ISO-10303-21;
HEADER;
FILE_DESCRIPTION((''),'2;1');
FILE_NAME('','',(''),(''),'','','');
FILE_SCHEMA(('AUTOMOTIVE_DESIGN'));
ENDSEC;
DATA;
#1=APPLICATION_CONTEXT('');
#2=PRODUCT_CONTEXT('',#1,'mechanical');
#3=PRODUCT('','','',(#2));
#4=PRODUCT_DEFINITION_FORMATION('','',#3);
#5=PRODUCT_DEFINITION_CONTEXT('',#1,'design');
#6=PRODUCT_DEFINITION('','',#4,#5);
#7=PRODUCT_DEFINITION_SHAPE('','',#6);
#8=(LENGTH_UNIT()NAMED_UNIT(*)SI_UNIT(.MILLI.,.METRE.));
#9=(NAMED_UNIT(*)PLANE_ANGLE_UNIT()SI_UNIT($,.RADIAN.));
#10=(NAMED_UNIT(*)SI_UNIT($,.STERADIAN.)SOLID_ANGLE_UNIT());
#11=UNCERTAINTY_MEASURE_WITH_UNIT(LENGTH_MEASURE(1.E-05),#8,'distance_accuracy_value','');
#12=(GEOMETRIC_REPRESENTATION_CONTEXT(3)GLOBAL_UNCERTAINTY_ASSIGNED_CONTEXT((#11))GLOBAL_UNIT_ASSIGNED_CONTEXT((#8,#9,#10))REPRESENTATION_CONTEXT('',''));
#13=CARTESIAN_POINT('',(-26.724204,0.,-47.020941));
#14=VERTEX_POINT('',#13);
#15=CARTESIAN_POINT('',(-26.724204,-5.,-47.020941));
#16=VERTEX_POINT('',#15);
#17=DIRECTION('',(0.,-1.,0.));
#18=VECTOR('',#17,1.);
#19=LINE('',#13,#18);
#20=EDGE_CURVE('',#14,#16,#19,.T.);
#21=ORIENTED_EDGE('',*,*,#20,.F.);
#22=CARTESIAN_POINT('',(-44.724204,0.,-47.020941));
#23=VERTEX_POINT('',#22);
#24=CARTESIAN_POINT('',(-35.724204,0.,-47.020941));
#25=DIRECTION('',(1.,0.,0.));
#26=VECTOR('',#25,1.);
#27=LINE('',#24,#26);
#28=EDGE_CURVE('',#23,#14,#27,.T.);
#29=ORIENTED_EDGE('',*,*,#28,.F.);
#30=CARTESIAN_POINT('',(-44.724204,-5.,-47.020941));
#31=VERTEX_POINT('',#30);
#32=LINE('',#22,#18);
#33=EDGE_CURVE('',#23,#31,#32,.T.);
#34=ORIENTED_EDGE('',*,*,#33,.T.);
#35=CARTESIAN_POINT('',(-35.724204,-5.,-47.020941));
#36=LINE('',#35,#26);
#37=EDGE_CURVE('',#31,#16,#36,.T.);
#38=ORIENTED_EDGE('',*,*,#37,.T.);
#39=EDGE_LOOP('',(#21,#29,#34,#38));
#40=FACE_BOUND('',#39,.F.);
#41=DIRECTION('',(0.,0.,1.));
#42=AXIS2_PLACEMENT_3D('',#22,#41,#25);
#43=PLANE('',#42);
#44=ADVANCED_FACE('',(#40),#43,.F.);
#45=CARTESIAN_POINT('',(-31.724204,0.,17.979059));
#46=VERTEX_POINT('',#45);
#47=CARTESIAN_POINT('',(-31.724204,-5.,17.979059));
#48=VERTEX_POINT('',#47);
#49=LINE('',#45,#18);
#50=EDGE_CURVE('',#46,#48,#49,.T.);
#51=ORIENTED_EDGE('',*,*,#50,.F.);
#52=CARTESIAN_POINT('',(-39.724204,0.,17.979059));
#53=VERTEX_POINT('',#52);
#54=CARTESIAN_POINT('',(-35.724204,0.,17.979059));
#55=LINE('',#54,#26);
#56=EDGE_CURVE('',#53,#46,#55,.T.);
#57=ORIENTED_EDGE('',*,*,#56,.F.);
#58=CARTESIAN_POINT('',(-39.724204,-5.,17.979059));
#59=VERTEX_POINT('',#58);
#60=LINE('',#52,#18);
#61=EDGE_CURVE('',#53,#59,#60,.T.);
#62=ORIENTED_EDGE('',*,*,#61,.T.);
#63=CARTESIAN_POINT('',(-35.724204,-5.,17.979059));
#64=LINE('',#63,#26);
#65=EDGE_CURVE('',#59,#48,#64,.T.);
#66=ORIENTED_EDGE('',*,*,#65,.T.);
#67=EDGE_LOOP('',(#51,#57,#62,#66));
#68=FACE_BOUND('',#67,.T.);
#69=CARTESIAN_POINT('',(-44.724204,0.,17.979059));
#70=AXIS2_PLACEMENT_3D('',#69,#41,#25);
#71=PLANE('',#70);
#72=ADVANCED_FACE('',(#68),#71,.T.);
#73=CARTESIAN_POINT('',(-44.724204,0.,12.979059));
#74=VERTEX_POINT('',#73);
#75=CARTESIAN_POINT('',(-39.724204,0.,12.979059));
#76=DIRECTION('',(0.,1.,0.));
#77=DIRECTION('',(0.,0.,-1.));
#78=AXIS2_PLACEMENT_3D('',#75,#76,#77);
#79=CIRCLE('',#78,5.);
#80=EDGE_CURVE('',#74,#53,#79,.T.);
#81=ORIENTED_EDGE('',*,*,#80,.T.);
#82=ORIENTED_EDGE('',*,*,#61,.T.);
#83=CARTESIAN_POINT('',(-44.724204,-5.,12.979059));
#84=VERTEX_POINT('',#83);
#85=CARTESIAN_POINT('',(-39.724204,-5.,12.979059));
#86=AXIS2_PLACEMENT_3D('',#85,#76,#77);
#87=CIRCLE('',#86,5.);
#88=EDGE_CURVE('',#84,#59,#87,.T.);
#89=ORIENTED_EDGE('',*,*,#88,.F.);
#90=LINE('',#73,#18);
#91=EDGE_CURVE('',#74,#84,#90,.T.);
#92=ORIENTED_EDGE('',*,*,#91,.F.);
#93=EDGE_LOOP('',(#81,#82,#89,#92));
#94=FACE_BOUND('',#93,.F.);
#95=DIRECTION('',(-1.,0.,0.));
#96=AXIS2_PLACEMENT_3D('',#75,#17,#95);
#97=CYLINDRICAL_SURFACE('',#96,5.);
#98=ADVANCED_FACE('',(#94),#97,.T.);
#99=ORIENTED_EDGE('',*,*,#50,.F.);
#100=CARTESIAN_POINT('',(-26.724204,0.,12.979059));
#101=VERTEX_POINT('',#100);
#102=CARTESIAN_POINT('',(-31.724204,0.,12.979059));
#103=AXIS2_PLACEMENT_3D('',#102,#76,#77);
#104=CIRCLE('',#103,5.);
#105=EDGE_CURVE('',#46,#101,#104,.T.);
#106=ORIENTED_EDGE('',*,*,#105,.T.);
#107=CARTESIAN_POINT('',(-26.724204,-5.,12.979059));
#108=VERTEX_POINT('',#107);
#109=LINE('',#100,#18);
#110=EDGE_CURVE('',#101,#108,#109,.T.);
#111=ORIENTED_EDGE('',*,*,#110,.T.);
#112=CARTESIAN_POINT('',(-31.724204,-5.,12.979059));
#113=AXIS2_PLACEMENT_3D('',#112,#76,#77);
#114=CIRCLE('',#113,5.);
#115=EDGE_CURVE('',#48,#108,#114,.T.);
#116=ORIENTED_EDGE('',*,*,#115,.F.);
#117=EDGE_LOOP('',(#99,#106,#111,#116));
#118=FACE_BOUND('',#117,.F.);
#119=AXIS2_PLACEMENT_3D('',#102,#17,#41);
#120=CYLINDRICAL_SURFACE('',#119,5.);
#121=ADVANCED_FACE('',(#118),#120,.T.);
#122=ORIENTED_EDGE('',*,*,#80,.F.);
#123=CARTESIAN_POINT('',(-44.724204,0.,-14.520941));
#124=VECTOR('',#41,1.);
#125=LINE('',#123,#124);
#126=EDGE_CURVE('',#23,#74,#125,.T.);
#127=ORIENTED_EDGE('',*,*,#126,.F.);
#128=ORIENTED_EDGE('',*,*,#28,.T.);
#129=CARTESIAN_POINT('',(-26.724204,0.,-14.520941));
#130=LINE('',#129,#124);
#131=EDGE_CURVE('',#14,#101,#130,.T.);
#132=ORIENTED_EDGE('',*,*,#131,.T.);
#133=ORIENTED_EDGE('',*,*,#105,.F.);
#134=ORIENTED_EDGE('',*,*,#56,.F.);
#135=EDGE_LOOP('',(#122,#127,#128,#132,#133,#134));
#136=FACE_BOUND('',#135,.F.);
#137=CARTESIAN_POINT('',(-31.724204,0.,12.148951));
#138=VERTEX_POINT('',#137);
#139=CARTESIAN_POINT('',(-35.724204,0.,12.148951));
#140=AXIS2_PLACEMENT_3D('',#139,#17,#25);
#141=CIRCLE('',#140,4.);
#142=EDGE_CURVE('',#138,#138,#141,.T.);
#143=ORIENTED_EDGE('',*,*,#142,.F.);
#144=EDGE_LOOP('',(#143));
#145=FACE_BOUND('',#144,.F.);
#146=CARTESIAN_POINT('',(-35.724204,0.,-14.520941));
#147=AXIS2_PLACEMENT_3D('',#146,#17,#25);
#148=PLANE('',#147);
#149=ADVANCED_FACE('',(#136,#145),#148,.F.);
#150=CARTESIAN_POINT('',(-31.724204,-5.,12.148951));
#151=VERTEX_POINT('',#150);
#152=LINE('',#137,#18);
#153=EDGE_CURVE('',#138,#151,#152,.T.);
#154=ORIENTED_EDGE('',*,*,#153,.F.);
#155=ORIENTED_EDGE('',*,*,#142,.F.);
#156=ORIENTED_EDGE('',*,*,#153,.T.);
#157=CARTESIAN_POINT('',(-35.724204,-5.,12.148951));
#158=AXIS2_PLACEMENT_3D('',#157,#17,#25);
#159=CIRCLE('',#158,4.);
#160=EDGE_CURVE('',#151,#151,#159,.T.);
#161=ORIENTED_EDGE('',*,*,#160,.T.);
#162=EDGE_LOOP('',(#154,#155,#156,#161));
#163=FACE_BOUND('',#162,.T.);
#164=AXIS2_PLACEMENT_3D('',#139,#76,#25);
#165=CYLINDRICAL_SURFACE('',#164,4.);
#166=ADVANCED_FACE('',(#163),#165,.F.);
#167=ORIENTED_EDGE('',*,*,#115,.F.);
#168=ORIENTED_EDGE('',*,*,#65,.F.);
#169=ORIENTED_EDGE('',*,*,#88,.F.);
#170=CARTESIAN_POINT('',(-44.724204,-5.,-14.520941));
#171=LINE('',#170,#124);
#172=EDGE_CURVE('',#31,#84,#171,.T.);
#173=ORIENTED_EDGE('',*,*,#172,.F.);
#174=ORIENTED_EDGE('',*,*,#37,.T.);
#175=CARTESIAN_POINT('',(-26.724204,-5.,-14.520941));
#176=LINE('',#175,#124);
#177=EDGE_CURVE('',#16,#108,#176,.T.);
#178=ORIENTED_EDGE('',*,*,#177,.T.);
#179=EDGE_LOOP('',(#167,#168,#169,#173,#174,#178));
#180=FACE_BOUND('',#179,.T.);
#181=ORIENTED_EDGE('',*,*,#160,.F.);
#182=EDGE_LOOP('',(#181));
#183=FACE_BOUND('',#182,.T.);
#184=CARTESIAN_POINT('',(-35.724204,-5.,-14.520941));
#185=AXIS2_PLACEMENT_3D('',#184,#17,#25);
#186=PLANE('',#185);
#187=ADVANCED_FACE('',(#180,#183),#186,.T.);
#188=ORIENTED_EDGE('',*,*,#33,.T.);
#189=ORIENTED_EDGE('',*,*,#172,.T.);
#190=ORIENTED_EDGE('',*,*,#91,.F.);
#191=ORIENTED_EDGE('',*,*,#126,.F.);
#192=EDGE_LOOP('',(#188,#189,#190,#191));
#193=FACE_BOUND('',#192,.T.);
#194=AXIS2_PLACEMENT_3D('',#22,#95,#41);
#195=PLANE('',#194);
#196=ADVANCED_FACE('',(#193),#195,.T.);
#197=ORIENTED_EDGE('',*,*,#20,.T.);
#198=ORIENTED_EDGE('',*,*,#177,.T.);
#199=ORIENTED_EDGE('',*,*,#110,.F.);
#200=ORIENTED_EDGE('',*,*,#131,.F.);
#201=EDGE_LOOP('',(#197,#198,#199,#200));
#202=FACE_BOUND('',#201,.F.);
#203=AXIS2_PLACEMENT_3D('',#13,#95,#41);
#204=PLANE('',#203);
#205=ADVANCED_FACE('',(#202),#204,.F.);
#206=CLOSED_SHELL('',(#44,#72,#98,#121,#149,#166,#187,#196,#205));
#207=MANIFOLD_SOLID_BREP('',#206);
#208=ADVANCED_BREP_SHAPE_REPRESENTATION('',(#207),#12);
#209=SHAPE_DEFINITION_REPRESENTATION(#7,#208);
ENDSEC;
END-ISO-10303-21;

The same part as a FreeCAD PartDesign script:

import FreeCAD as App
import Part
import Sketcher

V = App.Vector


def edges_at(feature, points):
    """Names of the edges that pass closest to the given points."""
    edges = feature.Shape.Edges
    near = lambda p: min(range(len(edges)), key=lambda i: edges[i].distToShape(Part.Vertex(*p))[0])
    return sorted({f"Edge{near(p) + 1}" for p in points})


def add_polygon(sketch, points):
    """Adds a closed chain of lines whose ends are joined by coincident constraints."""
    first, n = sketch.GeometryCount, len(points)
    for a, b in zip(points, points[1:] + points[:1]):
        sketch.addGeometry(Part.LineSegment(App.Vector(*a, 0), App.Vector(*b, 0)), False)
    for i in range(n):
        sketch.addConstraint(Sketcher.Constraint("Coincident", first + i, 2, first + (i + 1) % n, 1))

doc = App.newDocument("Part")
params = doc.addObject("Spreadsheet::Sheet", "Params")
for row, (alias, value) in enumerate([
    ("sketch1_diameter", "8 mm"),
    ("sketch1_width", "18 mm"),
    ("sketch1_height", "65 mm"),
    ("pad1_length", "5 mm"),
    ("fillet_radius", "5 mm"),
], start=1):
    params.set(f"A{row}", alias)
    params.set(f"B{row}", "=" + value)
    params.setAlias(f"B{row}", alias)

body = doc.addObject("PartDesign::Body", "Body")

sketch1 = doc.addObject("Sketcher::SketchObject", "Sketch")
body.addObject(sketch1)
sketch1.AttachmentSupport = (doc.XZ_Plane, [""])
sketch1.MapMode = "FlatFace"
add_polygon(sketch1, [(-44.7, 18), (-44.7, -47), (-26.7, -47), (-26.7, 18)])
sketch1.addGeometry(Part.Circle(V(-35.7, 12.1, 0), V(0, 0, 1), 4), False)
sketch1.addConstraint([
    Sketcher.Constraint("Vertical", 0),
    Sketcher.Constraint("Horizontal", 1),
    Sketcher.Constraint("Vertical", 2),
    Sketcher.Constraint("Horizontal", 3),
    Sketcher.Constraint("Diameter", 4, 8.0),
    Sketcher.Constraint("DistanceX", 1, 1, 1, 2, 18.0),
    Sketcher.Constraint("DistanceY", 0, 2, 0, 1, 65.0),
    Sketcher.Constraint("DistanceX", 0, 2, 4, 3, 9.0),
    Sketcher.Constraint("DistanceY", -1, 1, 4, 3, 12.148951),
    Sketcher.Constraint("DistanceY", 0, 2, -1, 1, 47.020941),
    Sketcher.Constraint("DistanceX", 4, 3, -1, 1, 35.724204),
])
sketch1.setExpression("Constraints[8]", "Params.sketch1_diameter")
sketch1.setExpression("Constraints[9]", "Params.sketch1_width")
sketch1.setExpression("Constraints[10]", "Params.sketch1_height")
pad1 = doc.addObject("PartDesign::Pad", "Pad")
body.addObject(pad1)
pad1.Profile = sketch1
pad1.setExpression("Length", "Params.pad1_length")
doc.recompute()

fillet = doc.addObject("PartDesign::Fillet", "Fillet")
body.addObject(fillet)
fillet.Base = (pad1, edges_at(pad1, [(-44.724, -2.5, 17.979), (-26.724, -2.5, 17.979)]))
fillet.setExpression("Radius", "Params.fillet_radius")

doc.recompute()
